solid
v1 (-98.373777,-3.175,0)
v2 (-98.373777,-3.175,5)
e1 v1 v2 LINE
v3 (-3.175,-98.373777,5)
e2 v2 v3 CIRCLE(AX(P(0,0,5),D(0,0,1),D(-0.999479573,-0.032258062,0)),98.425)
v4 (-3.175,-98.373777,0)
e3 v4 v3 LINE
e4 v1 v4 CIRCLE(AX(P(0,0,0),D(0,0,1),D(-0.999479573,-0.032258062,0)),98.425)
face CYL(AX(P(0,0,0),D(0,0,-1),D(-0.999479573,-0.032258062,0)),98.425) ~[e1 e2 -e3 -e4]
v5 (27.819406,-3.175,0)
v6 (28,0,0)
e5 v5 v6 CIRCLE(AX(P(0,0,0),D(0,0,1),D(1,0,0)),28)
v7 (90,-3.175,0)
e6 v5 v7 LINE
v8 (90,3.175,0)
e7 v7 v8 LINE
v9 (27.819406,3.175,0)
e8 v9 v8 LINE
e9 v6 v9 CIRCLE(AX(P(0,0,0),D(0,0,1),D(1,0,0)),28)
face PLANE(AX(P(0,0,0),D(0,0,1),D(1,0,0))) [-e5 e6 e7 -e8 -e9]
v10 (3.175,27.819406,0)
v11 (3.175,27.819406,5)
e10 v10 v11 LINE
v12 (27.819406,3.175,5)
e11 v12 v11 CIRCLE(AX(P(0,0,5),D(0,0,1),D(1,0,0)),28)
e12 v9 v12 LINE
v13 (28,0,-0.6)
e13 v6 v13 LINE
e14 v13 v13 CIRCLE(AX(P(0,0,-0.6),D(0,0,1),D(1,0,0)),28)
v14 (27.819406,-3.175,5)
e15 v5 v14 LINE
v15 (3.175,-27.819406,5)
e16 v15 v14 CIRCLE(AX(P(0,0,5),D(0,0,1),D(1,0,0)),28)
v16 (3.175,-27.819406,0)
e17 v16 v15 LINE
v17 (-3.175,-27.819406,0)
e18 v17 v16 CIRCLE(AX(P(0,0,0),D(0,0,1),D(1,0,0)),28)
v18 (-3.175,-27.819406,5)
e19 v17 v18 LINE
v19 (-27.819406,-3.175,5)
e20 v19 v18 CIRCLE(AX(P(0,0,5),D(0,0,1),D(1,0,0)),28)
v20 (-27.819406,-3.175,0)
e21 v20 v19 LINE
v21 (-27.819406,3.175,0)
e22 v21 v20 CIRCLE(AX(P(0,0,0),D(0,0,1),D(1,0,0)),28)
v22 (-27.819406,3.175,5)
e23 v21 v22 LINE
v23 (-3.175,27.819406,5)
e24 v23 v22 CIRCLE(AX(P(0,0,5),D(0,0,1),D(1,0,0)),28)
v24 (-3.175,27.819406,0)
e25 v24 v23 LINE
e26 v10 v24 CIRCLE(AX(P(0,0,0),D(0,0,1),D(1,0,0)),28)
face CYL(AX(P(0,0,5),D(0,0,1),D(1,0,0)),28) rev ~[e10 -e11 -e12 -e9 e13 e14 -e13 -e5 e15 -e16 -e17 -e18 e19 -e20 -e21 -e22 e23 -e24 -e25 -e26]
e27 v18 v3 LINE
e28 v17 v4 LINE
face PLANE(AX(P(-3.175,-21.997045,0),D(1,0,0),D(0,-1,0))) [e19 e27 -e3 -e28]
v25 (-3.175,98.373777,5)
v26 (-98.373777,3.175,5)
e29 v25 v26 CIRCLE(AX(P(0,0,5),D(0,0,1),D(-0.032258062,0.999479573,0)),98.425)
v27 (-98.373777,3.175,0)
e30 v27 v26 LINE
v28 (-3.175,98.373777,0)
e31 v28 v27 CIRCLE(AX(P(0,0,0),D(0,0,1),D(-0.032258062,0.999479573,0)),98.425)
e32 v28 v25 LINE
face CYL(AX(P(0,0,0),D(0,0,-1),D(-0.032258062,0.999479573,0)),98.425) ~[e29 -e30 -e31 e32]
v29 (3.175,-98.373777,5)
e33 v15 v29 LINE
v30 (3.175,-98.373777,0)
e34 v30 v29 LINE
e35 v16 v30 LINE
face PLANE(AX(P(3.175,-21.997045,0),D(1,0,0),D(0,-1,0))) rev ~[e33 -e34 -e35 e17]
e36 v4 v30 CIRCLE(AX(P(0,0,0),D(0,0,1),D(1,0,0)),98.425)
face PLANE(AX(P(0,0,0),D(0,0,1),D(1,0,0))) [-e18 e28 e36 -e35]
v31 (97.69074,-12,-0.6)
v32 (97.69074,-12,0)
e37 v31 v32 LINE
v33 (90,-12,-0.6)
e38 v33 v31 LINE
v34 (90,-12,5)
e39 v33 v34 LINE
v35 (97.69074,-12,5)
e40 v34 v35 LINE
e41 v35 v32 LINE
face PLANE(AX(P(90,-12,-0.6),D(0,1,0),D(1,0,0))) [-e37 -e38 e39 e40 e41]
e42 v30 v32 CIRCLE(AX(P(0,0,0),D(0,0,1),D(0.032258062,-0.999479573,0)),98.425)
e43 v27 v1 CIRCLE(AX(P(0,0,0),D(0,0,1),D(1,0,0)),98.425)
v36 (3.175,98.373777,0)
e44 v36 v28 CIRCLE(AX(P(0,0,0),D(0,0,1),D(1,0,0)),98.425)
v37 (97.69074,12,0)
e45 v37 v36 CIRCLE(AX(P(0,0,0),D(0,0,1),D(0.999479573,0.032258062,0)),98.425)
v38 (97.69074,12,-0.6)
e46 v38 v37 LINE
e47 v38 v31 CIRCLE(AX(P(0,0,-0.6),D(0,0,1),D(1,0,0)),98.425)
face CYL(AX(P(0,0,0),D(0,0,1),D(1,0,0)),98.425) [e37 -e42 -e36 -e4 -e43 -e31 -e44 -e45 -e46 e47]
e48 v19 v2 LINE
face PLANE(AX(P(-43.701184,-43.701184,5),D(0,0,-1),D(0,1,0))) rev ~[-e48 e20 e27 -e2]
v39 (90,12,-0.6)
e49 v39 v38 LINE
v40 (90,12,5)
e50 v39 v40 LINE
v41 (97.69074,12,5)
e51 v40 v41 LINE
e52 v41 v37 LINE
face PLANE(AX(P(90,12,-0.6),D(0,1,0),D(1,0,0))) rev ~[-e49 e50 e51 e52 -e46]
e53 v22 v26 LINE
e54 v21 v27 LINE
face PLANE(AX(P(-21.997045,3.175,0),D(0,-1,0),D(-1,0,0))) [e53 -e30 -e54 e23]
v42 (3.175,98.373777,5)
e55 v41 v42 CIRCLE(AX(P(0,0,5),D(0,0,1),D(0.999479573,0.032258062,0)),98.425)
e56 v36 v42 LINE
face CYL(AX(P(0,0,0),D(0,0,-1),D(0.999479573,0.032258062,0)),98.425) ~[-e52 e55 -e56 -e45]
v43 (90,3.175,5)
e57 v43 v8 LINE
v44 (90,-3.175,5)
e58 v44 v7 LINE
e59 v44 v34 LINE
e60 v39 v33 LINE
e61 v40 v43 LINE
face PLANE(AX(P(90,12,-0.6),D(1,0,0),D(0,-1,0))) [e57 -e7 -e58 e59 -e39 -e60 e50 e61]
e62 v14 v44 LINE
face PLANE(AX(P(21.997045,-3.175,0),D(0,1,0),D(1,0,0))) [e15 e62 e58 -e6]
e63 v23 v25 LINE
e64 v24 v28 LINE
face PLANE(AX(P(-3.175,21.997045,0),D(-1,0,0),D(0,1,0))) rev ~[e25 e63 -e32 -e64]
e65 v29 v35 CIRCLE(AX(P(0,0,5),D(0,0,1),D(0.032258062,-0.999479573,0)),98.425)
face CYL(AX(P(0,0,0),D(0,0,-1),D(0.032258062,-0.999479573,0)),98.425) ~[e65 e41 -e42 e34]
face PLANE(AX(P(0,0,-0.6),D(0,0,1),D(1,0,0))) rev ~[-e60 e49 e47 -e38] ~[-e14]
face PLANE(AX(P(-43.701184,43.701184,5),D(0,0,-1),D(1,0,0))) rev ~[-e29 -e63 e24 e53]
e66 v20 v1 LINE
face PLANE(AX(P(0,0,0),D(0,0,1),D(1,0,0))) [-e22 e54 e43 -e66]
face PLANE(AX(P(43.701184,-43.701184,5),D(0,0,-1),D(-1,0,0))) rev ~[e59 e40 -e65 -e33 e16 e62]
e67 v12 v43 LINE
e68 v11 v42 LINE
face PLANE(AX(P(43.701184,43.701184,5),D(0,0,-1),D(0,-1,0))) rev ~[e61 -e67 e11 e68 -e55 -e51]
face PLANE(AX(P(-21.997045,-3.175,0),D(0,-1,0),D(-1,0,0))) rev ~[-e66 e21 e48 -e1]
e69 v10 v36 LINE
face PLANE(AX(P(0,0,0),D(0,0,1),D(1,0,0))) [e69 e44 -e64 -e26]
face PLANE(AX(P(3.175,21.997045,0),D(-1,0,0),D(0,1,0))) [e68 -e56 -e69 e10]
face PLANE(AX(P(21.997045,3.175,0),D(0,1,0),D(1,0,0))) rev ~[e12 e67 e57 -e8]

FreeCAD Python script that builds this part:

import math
import FreeCAD as App
import Part
import Sketcher
Q = App.Units.Quantity


def add_polygon(sketch, points):
    """Adds a closed chain of lines whose ends are joined by coincident constraints."""
    first, n = sketch.GeometryCount, len(points)
    for a, b in zip(points, points[1:] + points[:1]):
        sketch.addGeometry(Part.LineSegment(App.Vector(*a, 0), App.Vector(*b, 0)), False)
    for i in range(n):
        sketch.addConstraint(Sketcher.Constraint("Coincident", first + i, 2, first + (i + 1) % n, 1))

doc = App.newDocument("Part")
body = doc.addObject("PartDesign::Body", "Body")

# Sketch on XY plane
sketch1 = doc.addObject("Sketcher::SketchObject", "Sketch")
body.addObject(sketch1)
sketch1.AttachmentSupport = (doc.XY_Plane, [""])
sketch1.MapMode = "FlatFace"
sketch1.addGeometry(Part.Circle(App.Vector(0, 0, 0), App.Vector(0, 0, 1), 98), False)
sketch1.addConstraint([
    Sketcher.Constraint("Coincident", 0, 3, -1, 1),
    Sketcher.Constraint("Diameter", 0, Q("196.85 mm")),
])
pad1 = doc.addObject("PartDesign::Pad", "Pad")
body.addObject(pad1)
pad1.Profile = sketch1
pad1.Length = 0.6
pad1.Reversed = True

# Sketch on XY plane
sketch2 = doc.addObject("Sketcher::SketchObject", "Sketch001")
body.addObject(sketch2)
sketch2.AttachmentSupport = (doc.XY_Plane, [""])
sketch2.MapMode = "FlatFace"
sketch2.addGeometry([
    Part.ArcOfCircle(Part.Circle(App.Vector(0, 0, 0), App.Vector(0, 0, 1), 22), math.radians(-82), math.radians(-8)),
    Part.LineSegment(App.Vector(3, -22, 0), App.Vector(3, -98, 0)),
    Part.ArcOfCircle(Part.Circle(App.Vector(0, 0, 0), App.Vector(0, 0, 1), 98), math.radians(-88), math.radians(-2)),
    Part.LineSegment(App.Vector(98, -3, 0), App.Vector(22, -3, 0)),
], False)
sketch2.addConstraint([
    Sketcher.Constraint("Coincident", 0, 1, 1, 1),
    Sketcher.Constraint("Coincident", 1, 2, 2, 1),
    Sketcher.Constraint("Coincident", 2, 2, 3, 1),
    Sketcher.Constraint("Coincident", 3, 2, 0, 2),
    Sketcher.Constraint("Vertical", 1),
    Sketcher.Constraint("Horizontal", 3),
    Sketcher.Constraint("Coincident", 0, 3, -1, 1),
    Sketcher.Constraint("Coincident", 2, 3, -1, 1),
    Sketcher.Constraint("Equal", 3, 1),
    Sketcher.Constraint("Radius", 0, Q("22.225 mm")),
    Sketcher.Constraint("Radius", 2, Q("98.425 mm")),
    Sketcher.Constraint("DistanceX", -1, 1, 0, 1, Q("3.175 mm")),
])
pad2 = doc.addObject("PartDesign::Pad", "Pad001")
body.addObject(pad2)
pad2.Profile = sketch2
pad2.Length = 5
doc.recompute()

polarpattern = doc.addObject("PartDesign::PolarPattern", "PolarPattern")
body.addObject(polarpattern)
polarpattern.Originals = [pad2]
polarpattern.Axis = (doc.Z_Axis, [""])
polarpattern.Angle = 360
polarpattern.Occurrences = 4
body.Tip = polarpattern

# Sketch on XY plane
sketch3 = doc.addObject("Sketcher::SketchObject", "Sketch002")
body.addObject(sketch3)
sketch3.AttachmentSupport = (doc.XY_Plane, [""])
sketch3.MapMode = "FlatFace"
sketch3.AttachmentOffset = App.Placement(App.Vector(0, 0, 5), App.Rotation())
sketch3.addGeometry(Part.Circle(App.Vector(0, 0, 0), App.Vector(0, 0, 1), 28), False)
sketch3.addConstraint([
    Sketcher.Constraint("Coincident", 0, 3, -1, 1),
    Sketcher.Constraint("Diameter", 0, Q("56 mm")),
])
pocket1 = doc.addObject("PartDesign::Pocket", "Pocket")
body.addObject(pocket1)
pocket1.Profile = sketch3
pocket1.Type = "ThroughAll"

# Sketch on XY plane
sketch4 = doc.addObject("Sketcher::SketchObject", "Sketch003")
body.addObject(sketch4)
sketch4.AttachmentSupport = (doc.XY_Plane, [""])
sketch4.MapMode = "FlatFace"
sketch4.AttachmentOffset = App.Placement(App.Vector(0, 0, -0.6), App.Rotation())
add_polygon(sketch4, [(90, -12), (90, 12), (105, 12), (105, -12)])  # lines 0-3
sketch4.addConstraint([
    Sketcher.Constraint("Vertical", 0),
    Sketcher.Constraint("Horizontal", 1),
    Sketcher.Constraint("Vertical", 2),
    Sketcher.Constraint("Horizontal", 3),
    Sketcher.Constraint("DistanceX", 1, 1, 1, 2, Q("15 mm")),
    Sketcher.Constraint("DistanceY", 0, 1, 0, 2, Q("24 mm")),
    Sketcher.Constraint("DistanceX", -1, 1, 0, 2, Q("90 mm")),
    Sketcher.Constraint("DistanceY", -1, 1, 0, 2, Q("12 mm")),
])
pocket2 = doc.addObject("PartDesign::Pocket", "Pocket001")
body.addObject(pocket2)
pocket2.Profile = sketch4
pocket2.Type = "ThroughAll"
pocket2.Reversed = True

doc.recompute()
